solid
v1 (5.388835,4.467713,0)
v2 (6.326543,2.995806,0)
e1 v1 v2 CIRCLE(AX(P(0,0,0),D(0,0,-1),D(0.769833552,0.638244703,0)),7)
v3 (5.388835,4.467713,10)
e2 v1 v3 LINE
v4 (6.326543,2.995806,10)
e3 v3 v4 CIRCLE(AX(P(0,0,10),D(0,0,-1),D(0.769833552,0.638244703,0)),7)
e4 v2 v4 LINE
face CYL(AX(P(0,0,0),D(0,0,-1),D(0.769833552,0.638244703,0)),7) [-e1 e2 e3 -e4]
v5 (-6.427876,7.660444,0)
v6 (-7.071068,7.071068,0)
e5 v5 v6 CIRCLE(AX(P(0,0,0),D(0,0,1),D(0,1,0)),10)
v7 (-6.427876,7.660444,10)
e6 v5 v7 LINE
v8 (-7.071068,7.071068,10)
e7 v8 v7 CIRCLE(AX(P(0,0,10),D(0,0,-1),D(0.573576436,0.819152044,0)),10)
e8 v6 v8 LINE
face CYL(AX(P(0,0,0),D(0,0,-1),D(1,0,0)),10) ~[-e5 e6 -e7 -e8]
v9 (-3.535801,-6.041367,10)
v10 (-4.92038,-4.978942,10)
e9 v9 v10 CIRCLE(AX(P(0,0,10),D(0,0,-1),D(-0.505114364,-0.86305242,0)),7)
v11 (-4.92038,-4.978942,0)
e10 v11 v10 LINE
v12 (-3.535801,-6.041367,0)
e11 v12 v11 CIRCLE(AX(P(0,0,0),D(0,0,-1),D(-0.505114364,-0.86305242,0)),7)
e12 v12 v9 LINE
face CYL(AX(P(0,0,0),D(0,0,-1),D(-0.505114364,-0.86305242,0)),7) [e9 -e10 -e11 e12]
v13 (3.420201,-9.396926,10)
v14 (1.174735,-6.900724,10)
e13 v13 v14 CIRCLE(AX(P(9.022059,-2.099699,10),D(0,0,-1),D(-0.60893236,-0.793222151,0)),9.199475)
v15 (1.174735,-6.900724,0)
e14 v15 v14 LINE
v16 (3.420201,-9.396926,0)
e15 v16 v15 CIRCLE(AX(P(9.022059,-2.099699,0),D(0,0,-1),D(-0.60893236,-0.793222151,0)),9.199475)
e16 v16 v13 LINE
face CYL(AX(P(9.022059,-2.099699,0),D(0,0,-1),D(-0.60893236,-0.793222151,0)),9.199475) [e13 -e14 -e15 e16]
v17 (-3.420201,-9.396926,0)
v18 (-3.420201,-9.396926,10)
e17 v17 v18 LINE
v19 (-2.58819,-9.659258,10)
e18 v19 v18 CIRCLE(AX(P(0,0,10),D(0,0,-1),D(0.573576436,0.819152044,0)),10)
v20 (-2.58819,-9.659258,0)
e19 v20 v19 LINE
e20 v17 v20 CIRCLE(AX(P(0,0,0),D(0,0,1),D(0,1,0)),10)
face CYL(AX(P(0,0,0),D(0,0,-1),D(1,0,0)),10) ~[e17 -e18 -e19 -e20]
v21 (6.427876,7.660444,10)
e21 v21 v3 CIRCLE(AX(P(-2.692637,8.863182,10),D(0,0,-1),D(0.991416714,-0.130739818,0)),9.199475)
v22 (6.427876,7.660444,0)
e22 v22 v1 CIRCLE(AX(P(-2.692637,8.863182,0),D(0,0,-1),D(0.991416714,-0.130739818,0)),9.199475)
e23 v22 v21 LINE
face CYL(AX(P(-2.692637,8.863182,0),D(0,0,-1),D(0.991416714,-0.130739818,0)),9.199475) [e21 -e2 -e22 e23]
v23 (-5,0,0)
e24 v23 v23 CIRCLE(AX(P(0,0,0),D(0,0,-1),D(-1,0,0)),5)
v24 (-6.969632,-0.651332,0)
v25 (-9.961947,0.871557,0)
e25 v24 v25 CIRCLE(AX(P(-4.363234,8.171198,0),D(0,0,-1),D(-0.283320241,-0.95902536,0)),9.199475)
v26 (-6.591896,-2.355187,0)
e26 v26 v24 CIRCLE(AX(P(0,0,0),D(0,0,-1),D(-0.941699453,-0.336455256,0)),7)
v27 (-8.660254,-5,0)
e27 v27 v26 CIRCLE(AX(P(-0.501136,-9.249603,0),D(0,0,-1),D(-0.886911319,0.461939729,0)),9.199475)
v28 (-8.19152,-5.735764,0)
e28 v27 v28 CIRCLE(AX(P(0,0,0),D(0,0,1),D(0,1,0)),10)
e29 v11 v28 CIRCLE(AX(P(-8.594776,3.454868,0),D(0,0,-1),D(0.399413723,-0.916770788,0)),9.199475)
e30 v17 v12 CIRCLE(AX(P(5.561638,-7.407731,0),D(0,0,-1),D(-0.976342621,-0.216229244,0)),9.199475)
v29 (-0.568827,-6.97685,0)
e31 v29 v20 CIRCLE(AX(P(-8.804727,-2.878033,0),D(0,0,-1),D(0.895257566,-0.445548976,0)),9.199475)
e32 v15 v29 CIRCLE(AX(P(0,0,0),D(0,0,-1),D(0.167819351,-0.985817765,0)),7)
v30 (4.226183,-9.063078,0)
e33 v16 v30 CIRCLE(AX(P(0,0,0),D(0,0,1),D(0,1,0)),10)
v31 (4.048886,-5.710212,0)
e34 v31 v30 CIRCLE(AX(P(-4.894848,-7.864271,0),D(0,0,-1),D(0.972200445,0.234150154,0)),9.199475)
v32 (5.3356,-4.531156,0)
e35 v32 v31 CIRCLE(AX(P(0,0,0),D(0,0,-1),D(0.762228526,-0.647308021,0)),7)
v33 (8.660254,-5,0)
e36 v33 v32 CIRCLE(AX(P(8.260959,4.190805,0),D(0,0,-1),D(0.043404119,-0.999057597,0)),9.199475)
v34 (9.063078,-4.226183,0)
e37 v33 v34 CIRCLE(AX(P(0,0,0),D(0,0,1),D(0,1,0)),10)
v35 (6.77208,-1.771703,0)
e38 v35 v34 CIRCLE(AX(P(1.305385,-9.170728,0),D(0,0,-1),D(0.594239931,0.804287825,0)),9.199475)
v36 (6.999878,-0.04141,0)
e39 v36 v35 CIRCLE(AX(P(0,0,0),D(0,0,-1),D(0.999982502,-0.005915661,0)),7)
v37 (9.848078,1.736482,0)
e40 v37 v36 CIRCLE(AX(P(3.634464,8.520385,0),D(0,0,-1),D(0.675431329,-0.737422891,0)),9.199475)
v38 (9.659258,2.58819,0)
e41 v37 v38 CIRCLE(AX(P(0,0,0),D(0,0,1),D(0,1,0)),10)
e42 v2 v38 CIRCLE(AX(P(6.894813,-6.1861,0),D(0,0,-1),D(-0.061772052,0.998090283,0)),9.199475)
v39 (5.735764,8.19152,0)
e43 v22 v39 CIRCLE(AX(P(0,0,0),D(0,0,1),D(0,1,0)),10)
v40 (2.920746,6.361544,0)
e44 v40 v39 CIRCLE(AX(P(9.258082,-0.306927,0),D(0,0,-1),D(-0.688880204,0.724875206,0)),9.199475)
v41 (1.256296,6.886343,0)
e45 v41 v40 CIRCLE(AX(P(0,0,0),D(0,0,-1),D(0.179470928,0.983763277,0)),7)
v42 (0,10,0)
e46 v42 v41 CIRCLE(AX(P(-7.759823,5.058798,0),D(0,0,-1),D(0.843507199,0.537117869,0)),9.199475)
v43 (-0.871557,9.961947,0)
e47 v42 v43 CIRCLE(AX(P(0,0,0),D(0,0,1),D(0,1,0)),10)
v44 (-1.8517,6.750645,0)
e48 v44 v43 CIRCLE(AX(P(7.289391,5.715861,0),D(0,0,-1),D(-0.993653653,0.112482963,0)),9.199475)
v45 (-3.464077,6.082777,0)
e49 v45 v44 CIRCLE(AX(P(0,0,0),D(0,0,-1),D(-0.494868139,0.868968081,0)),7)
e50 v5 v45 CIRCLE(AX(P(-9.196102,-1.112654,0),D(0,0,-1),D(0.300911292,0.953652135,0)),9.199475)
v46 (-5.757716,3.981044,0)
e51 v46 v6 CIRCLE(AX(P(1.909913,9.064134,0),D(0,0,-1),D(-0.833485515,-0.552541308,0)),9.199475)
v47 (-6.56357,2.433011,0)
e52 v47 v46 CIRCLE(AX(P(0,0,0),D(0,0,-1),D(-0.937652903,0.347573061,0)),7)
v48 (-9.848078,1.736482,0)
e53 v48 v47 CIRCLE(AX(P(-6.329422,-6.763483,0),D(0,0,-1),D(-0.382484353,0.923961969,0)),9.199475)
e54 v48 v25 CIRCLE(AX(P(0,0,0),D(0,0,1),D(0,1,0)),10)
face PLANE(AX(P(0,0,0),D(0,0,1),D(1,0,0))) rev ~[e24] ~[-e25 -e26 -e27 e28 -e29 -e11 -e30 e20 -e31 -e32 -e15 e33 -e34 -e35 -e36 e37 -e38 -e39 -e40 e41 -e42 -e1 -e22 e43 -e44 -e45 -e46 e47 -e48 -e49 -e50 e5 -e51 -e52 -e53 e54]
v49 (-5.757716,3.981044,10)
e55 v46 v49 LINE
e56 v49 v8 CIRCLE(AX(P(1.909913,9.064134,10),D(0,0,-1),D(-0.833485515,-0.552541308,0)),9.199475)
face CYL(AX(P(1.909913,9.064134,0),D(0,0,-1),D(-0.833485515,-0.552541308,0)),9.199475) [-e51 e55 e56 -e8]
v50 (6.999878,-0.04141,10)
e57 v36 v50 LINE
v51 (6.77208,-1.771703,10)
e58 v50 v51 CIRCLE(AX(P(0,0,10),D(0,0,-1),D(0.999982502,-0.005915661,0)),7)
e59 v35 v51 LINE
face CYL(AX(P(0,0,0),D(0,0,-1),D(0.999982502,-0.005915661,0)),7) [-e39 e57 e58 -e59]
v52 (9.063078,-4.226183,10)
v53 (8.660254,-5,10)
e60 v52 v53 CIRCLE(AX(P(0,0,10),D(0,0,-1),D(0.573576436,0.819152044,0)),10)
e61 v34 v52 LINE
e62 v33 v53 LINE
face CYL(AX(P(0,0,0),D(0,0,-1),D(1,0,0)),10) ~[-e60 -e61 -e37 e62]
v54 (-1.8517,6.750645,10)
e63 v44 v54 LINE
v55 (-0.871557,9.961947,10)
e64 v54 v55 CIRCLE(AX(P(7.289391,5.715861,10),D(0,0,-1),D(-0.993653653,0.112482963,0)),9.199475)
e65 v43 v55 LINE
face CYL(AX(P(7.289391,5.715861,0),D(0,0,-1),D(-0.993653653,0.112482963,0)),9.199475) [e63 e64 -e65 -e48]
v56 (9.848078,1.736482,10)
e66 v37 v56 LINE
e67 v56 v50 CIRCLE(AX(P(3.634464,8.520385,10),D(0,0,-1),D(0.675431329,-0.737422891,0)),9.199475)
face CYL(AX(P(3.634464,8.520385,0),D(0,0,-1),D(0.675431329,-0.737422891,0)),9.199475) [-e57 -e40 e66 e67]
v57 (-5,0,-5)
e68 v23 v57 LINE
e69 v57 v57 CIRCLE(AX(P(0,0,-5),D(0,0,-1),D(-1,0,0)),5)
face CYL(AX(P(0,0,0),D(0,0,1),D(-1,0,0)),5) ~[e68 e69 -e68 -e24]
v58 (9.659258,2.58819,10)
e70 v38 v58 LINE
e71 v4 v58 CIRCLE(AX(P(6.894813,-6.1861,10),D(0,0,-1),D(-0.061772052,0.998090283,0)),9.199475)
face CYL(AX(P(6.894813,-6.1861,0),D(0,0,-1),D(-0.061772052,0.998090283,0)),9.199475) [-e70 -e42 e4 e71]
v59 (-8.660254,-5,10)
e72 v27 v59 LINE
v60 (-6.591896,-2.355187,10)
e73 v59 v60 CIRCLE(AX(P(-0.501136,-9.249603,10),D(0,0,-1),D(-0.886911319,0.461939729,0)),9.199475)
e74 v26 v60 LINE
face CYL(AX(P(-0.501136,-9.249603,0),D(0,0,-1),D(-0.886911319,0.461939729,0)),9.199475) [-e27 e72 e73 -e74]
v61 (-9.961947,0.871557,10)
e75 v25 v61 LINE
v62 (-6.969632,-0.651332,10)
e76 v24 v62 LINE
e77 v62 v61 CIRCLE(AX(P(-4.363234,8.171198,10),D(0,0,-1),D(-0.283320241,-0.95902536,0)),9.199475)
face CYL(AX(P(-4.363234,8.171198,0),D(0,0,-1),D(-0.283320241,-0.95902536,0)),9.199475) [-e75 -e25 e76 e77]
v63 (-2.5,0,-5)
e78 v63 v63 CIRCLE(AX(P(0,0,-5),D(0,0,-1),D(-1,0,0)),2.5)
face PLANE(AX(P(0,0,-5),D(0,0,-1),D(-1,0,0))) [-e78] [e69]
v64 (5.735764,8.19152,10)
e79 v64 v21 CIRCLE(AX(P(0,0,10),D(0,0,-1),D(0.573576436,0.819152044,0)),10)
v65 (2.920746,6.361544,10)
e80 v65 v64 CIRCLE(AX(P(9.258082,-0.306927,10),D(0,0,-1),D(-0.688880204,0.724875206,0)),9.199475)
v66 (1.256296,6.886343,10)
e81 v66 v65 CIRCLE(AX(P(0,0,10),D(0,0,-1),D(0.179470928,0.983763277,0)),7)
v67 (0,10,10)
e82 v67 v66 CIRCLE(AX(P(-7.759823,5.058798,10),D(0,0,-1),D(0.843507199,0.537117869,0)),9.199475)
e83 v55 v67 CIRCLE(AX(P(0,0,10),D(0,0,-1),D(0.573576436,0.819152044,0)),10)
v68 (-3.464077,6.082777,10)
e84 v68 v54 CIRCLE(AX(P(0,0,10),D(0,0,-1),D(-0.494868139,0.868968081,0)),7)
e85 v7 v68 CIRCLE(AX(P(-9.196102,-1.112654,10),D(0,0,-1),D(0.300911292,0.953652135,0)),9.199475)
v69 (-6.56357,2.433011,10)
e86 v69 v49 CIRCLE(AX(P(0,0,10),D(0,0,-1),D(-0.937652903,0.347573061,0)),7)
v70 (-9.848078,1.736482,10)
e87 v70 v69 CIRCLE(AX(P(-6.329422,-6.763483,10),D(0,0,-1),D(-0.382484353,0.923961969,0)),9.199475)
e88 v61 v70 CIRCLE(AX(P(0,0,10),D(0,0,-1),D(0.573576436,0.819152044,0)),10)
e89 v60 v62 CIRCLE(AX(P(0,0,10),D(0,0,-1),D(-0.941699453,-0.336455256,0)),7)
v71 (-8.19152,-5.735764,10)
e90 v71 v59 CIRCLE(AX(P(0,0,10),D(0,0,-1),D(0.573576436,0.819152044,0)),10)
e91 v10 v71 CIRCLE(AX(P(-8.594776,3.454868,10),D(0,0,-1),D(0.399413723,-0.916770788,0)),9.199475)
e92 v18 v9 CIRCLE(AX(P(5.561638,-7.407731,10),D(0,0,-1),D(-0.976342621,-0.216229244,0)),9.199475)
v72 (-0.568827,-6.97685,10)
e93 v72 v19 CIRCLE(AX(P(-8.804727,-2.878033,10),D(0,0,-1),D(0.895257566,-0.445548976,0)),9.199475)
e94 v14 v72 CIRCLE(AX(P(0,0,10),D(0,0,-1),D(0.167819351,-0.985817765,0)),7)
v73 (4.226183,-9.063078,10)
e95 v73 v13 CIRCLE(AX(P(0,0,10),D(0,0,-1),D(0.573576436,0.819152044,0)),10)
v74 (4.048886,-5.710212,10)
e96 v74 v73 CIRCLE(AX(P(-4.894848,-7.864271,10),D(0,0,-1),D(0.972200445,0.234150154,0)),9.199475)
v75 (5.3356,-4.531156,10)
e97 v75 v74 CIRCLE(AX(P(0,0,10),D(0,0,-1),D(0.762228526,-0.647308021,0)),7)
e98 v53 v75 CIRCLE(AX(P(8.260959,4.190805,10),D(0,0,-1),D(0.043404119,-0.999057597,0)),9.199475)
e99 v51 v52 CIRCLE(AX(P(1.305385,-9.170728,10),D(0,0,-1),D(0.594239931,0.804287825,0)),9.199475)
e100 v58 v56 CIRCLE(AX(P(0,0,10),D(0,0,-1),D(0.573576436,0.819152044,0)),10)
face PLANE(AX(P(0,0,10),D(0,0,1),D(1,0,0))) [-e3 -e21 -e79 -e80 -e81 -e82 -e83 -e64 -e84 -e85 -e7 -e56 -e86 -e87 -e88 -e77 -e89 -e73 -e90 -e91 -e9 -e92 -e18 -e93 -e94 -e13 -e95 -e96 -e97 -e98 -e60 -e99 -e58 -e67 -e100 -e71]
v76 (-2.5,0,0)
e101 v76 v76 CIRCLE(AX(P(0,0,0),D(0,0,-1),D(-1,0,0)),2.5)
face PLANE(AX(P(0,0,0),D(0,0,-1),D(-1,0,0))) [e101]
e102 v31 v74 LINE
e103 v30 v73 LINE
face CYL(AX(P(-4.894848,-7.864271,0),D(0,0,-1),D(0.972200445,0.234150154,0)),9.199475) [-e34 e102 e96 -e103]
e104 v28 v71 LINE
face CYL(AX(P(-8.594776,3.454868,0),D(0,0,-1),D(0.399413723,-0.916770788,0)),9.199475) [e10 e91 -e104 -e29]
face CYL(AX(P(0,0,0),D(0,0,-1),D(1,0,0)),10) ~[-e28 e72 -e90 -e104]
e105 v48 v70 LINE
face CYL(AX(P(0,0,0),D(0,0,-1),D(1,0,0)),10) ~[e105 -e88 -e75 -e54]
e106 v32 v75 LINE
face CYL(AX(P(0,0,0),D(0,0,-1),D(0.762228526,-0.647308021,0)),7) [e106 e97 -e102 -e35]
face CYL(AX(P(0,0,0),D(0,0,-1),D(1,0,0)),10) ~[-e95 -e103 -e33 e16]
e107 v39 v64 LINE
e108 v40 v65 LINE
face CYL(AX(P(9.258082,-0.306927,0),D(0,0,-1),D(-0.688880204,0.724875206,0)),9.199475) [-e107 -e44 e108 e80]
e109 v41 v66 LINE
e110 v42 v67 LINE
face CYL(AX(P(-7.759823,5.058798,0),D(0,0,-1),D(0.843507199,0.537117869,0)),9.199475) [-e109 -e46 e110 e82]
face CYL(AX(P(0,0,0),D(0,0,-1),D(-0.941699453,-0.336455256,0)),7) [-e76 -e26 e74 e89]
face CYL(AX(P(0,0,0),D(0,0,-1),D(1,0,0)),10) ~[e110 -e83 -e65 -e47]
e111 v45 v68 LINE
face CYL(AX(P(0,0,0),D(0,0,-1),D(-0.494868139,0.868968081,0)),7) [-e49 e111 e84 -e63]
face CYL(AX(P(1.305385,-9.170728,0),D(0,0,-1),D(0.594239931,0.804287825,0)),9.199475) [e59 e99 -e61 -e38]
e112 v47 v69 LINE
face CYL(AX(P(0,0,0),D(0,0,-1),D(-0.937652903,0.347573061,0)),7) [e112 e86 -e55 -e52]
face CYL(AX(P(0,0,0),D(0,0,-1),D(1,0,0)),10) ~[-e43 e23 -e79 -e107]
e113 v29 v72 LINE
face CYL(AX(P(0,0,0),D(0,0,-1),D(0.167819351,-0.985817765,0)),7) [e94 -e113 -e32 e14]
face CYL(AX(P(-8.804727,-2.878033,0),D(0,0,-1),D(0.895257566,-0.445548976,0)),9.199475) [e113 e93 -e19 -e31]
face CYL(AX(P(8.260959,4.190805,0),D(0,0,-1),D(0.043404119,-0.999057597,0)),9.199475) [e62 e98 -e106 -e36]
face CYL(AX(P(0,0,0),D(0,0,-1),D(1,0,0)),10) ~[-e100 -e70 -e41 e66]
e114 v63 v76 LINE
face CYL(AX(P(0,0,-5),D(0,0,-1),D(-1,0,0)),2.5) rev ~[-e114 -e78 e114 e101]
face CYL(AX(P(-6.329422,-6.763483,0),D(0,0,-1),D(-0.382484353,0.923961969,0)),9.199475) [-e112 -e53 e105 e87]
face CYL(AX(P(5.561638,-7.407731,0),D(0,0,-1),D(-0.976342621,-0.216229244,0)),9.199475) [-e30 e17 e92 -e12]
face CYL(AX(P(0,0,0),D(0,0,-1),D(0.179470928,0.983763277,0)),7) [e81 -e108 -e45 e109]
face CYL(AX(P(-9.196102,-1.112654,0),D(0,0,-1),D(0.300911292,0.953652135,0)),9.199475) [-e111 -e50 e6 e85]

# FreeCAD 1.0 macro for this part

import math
import FreeCAD as App
import Part
import Sketcher
from FreeCAD import Vector
Q = App.Units.Quantity

doc = App.newDocument("Part")
body = doc.addObject("PartDesign::Body", "Body")

# Sketch on XY plane
sketch1 = doc.addObject("Sketcher::SketchObject", "Sketch")
body.addObject(sketch1)
sketch1.AttachmentSupport = (doc.XY_Plane, [""])
sketch1.MapMode = "FlatFace"
sketch1.addGeometry(Part.Circle(Vector(0, 0, 0), Vector(0, 0, 1), 10), False)
sketch1.addConstraint([
    Sketcher.Constraint("Coincident", 0, 3, -1, 1),
    Sketcher.Constraint("Diameter", 0, Q("20 mm")),
])
pad1 = doc.addObject("PartDesign::Pad", "Pad")
body.addObject(pad1)
pad1.Profile = sketch1
pad1.Length = 10

# Sketch on XY plane
sketch2 = doc.addObject("Sketcher::SketchObject", "Sketch001")
body.addObject(sketch2)
sketch2.AttachmentSupport = (doc.XY_Plane, [""])
sketch2.MapMode = "FlatFace"
sketch2.addGeometry(Part.Circle(Vector(0, 0, 0), Vector(0, 0, 1), 5), False)
sketch2.addConstraint([
    Sketcher.Constraint("Coincident", 0, 3, -1, 1),
    Sketcher.Constraint("Diameter", 0, Q("10 mm")),
])
pad2 = doc.addObject("PartDesign::Pad", "Pad001")
body.addObject(pad2)
pad2.Profile = sketch2
pad2.Length = 5
pad2.Reversed = True

# Sketch on XY plane
sketch3 = doc.addObject("Sketcher::SketchObject", "Sketch002")
body.addObject(sketch3)
sketch3.AttachmentSupport = (doc.XY_Plane, [""])
sketch3.MapMode = "FlatFace"
sketch3.AttachmentOffset = App.Placement(Vector(0, 0, -5), App.Rotation())
sketch3.addGeometry(Part.Circle(Vector(0, 0, 0), Vector(0, 0, 1), 2.5), False)
sketch3.addConstraint([
    Sketcher.Constraint("Coincident", 0, 3, -1, 1),
    Sketcher.Constraint("Diameter", 0, Q("5 mm")),
])
pocket1 = doc.addObject("PartDesign::Pocket", "Pocket")
body.addObject(pocket1)
pocket1.Profile = sketch3
pocket1.Length = 5
pocket1.Reversed = True

# Sketch on XY plane
sketch4 = doc.addObject("Sketcher::SketchObject", "Sketch003")
body.addObject(sketch4)
sketch4.AttachmentSupport = (doc.XY_Plane, [""])
sketch4.MapMode = "FlatFace"
sketch4.addGeometry([
    Part.ArcOfCircle(Part.Circle(Vector(-7.8, 5.1, 0), Vector(0, 0, 1), 9.2), math.radians(11), math.radians(32)),
    Part.ArcOfCircle(Part.Circle(Vector(0, 0, 0), Vector(0, 0, 1), 7), math.radians(65.34), math.radians(79.66)),
    Part.ArcOfCircle(Part.Circle(Vector(9.3, -0.3, 0), Vector(0, 0, 1), 9.2), math.radians(113), math.radians(134)),
    Part.ArcOfCircle(Part.Circle(Vector(0, 0, 0), Vector(0, 0, 1), 10), math.radians(55), math.radians(90)),
], False)
sketch4.addConstraint([
    Sketcher.Constraint("Coincident", 0, 1, 1, 2),
    Sketcher.Constraint("Coincident", 1, 1, 2, 2),
    Sketcher.Constraint("Coincident", 2, 1, 3, 1),
    Sketcher.Constraint("Coincident", 3, 2, 0, 2),
    Sketcher.Constraint("Coincident", 1, 3, -1, 1),
    Sketcher.Constraint("Coincident", 3, 3, -1, 1),
    Sketcher.Constraint("Equal", 0, 2),
    Sketcher.Constraint("PointOnObject", 3, 2, -2),
    Sketcher.Constraint("Radius", 1, Q("7 mm")),
    Sketcher.Constraint("Radius", 3, Q("10 mm")),
    Sketcher.Constraint("Radius", 0, Q("9.199475 mm")),
    Sketcher.Constraint("DistanceY", 1, 1, 0, 1, Q("0.524799 mm")),
    Sketcher.Constraint("DistanceY", -1, 1, 2, 1, Q("8.19152 mm")),
    Sketcher.Constraint("DistanceX", 0, 3, 0, 1, Q("9.01612 mm")),
])
pocket2 = doc.addObject("PartDesign::Pocket", "Pocket001")
body.addObject(pocket2)
pocket2.Profile = sketch4
pocket2.Length = 10
pocket2.Reversed = True
doc.recompute()

polarpattern = doc.addObject("PartDesign::PolarPattern", "PolarPattern")
body.addObject(polarpattern)
polarpattern.Originals = [pocket2]
polarpattern.Axis = (doc.Z_Axis, [""])
polarpattern.Angle = 360
polarpattern.Occurrences = 9
body.Tip = polarpattern

doc.recompute()
